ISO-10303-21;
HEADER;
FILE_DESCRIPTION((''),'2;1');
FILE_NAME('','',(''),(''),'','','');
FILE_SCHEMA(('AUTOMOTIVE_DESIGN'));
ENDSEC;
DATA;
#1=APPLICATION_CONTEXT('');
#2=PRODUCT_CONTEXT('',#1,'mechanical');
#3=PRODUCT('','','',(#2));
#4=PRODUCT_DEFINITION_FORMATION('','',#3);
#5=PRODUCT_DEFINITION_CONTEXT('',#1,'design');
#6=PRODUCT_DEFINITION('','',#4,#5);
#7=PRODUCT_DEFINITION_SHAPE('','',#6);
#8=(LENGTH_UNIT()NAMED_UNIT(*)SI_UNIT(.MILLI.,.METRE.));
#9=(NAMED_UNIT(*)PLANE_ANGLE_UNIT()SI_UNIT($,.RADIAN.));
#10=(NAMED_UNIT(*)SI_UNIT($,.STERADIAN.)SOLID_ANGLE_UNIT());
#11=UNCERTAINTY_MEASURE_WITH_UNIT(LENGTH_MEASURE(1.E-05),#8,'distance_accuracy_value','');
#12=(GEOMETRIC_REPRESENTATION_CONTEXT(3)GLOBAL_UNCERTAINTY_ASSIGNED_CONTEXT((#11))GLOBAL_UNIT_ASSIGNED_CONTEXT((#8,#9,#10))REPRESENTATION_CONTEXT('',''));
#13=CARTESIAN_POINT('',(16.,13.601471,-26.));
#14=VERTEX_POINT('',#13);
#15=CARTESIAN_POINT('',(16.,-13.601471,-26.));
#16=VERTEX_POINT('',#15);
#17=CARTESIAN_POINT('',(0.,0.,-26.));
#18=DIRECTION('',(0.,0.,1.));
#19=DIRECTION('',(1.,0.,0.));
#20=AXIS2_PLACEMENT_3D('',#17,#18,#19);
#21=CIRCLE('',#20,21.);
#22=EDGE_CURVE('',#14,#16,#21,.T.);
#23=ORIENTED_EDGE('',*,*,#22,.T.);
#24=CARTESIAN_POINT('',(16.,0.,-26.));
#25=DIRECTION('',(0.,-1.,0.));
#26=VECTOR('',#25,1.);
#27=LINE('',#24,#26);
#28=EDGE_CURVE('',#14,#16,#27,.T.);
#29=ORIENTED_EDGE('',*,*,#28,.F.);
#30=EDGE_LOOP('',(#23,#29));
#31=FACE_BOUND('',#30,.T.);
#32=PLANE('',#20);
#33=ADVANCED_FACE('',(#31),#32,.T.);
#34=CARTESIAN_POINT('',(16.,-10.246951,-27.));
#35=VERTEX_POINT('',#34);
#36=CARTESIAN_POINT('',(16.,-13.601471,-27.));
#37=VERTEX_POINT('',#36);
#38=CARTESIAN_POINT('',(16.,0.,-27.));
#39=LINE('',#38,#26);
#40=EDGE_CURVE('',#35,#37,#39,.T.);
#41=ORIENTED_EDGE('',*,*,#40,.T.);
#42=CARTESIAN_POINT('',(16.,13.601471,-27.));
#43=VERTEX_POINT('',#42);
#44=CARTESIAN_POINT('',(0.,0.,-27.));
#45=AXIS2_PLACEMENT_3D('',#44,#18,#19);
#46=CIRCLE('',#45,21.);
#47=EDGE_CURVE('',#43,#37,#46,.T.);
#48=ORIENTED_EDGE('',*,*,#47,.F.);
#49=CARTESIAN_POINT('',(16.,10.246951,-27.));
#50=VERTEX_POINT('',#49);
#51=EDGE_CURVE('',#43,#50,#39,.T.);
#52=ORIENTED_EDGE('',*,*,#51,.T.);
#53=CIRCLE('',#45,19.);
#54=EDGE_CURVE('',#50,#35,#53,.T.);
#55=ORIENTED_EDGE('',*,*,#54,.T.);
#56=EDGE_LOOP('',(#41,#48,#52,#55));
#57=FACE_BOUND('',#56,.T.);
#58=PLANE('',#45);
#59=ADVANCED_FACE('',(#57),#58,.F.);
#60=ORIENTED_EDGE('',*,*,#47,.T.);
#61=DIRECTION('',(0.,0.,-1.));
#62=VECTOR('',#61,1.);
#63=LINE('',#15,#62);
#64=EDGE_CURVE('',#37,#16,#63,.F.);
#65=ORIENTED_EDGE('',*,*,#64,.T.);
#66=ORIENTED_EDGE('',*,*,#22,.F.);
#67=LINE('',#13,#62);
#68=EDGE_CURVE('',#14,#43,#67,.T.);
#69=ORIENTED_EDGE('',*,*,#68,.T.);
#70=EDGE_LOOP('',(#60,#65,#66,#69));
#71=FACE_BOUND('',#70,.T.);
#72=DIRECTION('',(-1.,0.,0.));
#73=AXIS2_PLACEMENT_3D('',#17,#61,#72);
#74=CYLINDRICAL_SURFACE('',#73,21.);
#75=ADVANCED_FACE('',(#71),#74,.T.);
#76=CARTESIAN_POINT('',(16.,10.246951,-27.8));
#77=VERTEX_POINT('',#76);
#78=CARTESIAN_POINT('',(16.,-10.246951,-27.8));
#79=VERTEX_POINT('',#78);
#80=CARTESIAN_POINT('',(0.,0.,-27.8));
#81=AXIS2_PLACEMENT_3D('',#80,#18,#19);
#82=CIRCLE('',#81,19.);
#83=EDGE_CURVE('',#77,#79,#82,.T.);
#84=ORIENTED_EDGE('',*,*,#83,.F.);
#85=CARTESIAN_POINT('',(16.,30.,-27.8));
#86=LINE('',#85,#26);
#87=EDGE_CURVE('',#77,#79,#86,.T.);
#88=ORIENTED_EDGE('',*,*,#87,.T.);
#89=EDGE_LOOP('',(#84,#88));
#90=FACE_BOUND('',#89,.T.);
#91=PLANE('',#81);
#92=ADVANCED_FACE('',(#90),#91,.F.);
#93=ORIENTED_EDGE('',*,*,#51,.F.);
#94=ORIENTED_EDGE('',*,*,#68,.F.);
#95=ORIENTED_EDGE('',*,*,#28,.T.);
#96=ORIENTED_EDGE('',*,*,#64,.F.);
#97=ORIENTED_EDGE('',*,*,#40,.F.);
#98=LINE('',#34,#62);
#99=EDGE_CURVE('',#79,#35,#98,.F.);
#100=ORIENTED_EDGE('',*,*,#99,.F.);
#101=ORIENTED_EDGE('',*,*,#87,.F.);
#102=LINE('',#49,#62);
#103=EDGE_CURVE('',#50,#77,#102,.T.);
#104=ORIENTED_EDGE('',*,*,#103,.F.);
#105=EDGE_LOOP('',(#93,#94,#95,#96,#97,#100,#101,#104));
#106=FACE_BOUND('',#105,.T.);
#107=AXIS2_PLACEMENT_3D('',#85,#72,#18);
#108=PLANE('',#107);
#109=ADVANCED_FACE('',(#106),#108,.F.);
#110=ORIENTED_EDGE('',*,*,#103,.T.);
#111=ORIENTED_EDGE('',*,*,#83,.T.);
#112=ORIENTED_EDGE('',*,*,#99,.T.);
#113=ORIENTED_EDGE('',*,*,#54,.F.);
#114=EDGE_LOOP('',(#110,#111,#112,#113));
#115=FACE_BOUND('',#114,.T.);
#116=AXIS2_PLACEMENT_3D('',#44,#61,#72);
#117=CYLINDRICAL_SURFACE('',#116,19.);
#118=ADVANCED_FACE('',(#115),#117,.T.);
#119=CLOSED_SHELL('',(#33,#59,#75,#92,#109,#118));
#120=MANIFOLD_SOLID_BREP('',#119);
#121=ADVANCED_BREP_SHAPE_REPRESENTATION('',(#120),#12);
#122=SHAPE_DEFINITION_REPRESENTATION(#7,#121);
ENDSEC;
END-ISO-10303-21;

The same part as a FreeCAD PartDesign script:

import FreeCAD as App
import Part
import Sketcher

V = App.Vector


def add_polygon(sketch, points):
    """Adds a closed chain of lines whose ends are joined by coincident constraints."""
    first, n = sketch.GeometryCount, len(points)
    for a, b in zip(points, points[1:] + points[:1]):
        sketch.addGeometry(Part.LineSegment(App.Vector(*a, 0), App.Vector(*b, 0)), False)
    for i in range(n):
        sketch.addConstraint(Sketcher.Constraint("Coincident", first + i, 2, first + (i + 1) % n, 1))

doc = App.newDocument("Part")
body = doc.addObject("PartDesign::Body", "Body")

# Sketch on XY plane
sketch1 = body.newObject("Sketcher::SketchObject", "Sketch")
sketch1.AttachmentSupport = (doc.getObject("XY_Plane"), [""])
sketch1.MapMode = "FlatFace"
sketch1.AttachmentOffset = App.Placement(V(0, 0, -27), App.Rotation())
sketch1.addGeometry(Part.Circle(V(0, 0, 0), V(0, 0, 1), 21), False)
sketch1.addConstraint([
    Sketcher.Constraint("Coincident", 0, 3, -1, 1),
    Sketcher.Constraint("Diameter", 0, 42.0),
])
pad1 = body.newObject("PartDesign::Pad", "Pad")
pad1.Profile = sketch1
pad1.Length = 1

# Sketch on XY plane
sketch2 = body.newObject("Sketcher::SketchObject", "Sketch001")
sketch2.AttachmentSupport = (doc.getObject("XY_Plane"), [""])
sketch2.MapMode = "FlatFace"
sketch2.AttachmentOffset = App.Placement(V(0, 0, -27.8), App.Rotation())
sketch2.addGeometry(Part.Circle(V(0, 0, 0), V(0, 0, 1), 19), False)
sketch2.addConstraint([
    Sketcher.Constraint("Coincident", 0, 3, -1, 1),
    Sketcher.Constraint("Diameter", 0, 38.0),
])
pad2 = body.newObject("PartDesign::Pad", "Pad001")
pad2.Profile = sketch2
pad2.Length = 0.8

# Sketch on XY plane
sketch3 = body.newObject("Sketcher::SketchObject", "Sketch002")
sketch3.AttachmentSupport = (doc.getObject("XY_Plane"), [""])
sketch3.MapMode = "FlatFace"
add_polygon(sketch3, [(16, 30), (16, -30), (30, -30), (30, 30)])  # lines 0-3
sketch3.addConstraint([
    Sketcher.Constraint("Vertical", 0),
    Sketcher.Constraint("Horizontal", 1),
    Sketcher.Constraint("Vertical", 2),
    Sketcher.Constraint("Horizontal", 3),
    Sketcher.Constraint("DistanceX", 1, 1, 1, 2, 14.0),
    Sketcher.Constraint("DistanceY", 0, 2, 0, 1, 60.0),
    Sketcher.Constraint("DistanceX", -1, 1, 0, 2, 16.0),
    Sketcher.Constraint("DistanceY", 0, 2, -1, 1, 30.0),
])
pocket1 = body.newObject("PartDesign::Pocket", "Pocket")
pocket1.Profile = sketch3
pocket1.Type = "ThroughAll"
pocket1.Midplane = True

doc.recompute()
